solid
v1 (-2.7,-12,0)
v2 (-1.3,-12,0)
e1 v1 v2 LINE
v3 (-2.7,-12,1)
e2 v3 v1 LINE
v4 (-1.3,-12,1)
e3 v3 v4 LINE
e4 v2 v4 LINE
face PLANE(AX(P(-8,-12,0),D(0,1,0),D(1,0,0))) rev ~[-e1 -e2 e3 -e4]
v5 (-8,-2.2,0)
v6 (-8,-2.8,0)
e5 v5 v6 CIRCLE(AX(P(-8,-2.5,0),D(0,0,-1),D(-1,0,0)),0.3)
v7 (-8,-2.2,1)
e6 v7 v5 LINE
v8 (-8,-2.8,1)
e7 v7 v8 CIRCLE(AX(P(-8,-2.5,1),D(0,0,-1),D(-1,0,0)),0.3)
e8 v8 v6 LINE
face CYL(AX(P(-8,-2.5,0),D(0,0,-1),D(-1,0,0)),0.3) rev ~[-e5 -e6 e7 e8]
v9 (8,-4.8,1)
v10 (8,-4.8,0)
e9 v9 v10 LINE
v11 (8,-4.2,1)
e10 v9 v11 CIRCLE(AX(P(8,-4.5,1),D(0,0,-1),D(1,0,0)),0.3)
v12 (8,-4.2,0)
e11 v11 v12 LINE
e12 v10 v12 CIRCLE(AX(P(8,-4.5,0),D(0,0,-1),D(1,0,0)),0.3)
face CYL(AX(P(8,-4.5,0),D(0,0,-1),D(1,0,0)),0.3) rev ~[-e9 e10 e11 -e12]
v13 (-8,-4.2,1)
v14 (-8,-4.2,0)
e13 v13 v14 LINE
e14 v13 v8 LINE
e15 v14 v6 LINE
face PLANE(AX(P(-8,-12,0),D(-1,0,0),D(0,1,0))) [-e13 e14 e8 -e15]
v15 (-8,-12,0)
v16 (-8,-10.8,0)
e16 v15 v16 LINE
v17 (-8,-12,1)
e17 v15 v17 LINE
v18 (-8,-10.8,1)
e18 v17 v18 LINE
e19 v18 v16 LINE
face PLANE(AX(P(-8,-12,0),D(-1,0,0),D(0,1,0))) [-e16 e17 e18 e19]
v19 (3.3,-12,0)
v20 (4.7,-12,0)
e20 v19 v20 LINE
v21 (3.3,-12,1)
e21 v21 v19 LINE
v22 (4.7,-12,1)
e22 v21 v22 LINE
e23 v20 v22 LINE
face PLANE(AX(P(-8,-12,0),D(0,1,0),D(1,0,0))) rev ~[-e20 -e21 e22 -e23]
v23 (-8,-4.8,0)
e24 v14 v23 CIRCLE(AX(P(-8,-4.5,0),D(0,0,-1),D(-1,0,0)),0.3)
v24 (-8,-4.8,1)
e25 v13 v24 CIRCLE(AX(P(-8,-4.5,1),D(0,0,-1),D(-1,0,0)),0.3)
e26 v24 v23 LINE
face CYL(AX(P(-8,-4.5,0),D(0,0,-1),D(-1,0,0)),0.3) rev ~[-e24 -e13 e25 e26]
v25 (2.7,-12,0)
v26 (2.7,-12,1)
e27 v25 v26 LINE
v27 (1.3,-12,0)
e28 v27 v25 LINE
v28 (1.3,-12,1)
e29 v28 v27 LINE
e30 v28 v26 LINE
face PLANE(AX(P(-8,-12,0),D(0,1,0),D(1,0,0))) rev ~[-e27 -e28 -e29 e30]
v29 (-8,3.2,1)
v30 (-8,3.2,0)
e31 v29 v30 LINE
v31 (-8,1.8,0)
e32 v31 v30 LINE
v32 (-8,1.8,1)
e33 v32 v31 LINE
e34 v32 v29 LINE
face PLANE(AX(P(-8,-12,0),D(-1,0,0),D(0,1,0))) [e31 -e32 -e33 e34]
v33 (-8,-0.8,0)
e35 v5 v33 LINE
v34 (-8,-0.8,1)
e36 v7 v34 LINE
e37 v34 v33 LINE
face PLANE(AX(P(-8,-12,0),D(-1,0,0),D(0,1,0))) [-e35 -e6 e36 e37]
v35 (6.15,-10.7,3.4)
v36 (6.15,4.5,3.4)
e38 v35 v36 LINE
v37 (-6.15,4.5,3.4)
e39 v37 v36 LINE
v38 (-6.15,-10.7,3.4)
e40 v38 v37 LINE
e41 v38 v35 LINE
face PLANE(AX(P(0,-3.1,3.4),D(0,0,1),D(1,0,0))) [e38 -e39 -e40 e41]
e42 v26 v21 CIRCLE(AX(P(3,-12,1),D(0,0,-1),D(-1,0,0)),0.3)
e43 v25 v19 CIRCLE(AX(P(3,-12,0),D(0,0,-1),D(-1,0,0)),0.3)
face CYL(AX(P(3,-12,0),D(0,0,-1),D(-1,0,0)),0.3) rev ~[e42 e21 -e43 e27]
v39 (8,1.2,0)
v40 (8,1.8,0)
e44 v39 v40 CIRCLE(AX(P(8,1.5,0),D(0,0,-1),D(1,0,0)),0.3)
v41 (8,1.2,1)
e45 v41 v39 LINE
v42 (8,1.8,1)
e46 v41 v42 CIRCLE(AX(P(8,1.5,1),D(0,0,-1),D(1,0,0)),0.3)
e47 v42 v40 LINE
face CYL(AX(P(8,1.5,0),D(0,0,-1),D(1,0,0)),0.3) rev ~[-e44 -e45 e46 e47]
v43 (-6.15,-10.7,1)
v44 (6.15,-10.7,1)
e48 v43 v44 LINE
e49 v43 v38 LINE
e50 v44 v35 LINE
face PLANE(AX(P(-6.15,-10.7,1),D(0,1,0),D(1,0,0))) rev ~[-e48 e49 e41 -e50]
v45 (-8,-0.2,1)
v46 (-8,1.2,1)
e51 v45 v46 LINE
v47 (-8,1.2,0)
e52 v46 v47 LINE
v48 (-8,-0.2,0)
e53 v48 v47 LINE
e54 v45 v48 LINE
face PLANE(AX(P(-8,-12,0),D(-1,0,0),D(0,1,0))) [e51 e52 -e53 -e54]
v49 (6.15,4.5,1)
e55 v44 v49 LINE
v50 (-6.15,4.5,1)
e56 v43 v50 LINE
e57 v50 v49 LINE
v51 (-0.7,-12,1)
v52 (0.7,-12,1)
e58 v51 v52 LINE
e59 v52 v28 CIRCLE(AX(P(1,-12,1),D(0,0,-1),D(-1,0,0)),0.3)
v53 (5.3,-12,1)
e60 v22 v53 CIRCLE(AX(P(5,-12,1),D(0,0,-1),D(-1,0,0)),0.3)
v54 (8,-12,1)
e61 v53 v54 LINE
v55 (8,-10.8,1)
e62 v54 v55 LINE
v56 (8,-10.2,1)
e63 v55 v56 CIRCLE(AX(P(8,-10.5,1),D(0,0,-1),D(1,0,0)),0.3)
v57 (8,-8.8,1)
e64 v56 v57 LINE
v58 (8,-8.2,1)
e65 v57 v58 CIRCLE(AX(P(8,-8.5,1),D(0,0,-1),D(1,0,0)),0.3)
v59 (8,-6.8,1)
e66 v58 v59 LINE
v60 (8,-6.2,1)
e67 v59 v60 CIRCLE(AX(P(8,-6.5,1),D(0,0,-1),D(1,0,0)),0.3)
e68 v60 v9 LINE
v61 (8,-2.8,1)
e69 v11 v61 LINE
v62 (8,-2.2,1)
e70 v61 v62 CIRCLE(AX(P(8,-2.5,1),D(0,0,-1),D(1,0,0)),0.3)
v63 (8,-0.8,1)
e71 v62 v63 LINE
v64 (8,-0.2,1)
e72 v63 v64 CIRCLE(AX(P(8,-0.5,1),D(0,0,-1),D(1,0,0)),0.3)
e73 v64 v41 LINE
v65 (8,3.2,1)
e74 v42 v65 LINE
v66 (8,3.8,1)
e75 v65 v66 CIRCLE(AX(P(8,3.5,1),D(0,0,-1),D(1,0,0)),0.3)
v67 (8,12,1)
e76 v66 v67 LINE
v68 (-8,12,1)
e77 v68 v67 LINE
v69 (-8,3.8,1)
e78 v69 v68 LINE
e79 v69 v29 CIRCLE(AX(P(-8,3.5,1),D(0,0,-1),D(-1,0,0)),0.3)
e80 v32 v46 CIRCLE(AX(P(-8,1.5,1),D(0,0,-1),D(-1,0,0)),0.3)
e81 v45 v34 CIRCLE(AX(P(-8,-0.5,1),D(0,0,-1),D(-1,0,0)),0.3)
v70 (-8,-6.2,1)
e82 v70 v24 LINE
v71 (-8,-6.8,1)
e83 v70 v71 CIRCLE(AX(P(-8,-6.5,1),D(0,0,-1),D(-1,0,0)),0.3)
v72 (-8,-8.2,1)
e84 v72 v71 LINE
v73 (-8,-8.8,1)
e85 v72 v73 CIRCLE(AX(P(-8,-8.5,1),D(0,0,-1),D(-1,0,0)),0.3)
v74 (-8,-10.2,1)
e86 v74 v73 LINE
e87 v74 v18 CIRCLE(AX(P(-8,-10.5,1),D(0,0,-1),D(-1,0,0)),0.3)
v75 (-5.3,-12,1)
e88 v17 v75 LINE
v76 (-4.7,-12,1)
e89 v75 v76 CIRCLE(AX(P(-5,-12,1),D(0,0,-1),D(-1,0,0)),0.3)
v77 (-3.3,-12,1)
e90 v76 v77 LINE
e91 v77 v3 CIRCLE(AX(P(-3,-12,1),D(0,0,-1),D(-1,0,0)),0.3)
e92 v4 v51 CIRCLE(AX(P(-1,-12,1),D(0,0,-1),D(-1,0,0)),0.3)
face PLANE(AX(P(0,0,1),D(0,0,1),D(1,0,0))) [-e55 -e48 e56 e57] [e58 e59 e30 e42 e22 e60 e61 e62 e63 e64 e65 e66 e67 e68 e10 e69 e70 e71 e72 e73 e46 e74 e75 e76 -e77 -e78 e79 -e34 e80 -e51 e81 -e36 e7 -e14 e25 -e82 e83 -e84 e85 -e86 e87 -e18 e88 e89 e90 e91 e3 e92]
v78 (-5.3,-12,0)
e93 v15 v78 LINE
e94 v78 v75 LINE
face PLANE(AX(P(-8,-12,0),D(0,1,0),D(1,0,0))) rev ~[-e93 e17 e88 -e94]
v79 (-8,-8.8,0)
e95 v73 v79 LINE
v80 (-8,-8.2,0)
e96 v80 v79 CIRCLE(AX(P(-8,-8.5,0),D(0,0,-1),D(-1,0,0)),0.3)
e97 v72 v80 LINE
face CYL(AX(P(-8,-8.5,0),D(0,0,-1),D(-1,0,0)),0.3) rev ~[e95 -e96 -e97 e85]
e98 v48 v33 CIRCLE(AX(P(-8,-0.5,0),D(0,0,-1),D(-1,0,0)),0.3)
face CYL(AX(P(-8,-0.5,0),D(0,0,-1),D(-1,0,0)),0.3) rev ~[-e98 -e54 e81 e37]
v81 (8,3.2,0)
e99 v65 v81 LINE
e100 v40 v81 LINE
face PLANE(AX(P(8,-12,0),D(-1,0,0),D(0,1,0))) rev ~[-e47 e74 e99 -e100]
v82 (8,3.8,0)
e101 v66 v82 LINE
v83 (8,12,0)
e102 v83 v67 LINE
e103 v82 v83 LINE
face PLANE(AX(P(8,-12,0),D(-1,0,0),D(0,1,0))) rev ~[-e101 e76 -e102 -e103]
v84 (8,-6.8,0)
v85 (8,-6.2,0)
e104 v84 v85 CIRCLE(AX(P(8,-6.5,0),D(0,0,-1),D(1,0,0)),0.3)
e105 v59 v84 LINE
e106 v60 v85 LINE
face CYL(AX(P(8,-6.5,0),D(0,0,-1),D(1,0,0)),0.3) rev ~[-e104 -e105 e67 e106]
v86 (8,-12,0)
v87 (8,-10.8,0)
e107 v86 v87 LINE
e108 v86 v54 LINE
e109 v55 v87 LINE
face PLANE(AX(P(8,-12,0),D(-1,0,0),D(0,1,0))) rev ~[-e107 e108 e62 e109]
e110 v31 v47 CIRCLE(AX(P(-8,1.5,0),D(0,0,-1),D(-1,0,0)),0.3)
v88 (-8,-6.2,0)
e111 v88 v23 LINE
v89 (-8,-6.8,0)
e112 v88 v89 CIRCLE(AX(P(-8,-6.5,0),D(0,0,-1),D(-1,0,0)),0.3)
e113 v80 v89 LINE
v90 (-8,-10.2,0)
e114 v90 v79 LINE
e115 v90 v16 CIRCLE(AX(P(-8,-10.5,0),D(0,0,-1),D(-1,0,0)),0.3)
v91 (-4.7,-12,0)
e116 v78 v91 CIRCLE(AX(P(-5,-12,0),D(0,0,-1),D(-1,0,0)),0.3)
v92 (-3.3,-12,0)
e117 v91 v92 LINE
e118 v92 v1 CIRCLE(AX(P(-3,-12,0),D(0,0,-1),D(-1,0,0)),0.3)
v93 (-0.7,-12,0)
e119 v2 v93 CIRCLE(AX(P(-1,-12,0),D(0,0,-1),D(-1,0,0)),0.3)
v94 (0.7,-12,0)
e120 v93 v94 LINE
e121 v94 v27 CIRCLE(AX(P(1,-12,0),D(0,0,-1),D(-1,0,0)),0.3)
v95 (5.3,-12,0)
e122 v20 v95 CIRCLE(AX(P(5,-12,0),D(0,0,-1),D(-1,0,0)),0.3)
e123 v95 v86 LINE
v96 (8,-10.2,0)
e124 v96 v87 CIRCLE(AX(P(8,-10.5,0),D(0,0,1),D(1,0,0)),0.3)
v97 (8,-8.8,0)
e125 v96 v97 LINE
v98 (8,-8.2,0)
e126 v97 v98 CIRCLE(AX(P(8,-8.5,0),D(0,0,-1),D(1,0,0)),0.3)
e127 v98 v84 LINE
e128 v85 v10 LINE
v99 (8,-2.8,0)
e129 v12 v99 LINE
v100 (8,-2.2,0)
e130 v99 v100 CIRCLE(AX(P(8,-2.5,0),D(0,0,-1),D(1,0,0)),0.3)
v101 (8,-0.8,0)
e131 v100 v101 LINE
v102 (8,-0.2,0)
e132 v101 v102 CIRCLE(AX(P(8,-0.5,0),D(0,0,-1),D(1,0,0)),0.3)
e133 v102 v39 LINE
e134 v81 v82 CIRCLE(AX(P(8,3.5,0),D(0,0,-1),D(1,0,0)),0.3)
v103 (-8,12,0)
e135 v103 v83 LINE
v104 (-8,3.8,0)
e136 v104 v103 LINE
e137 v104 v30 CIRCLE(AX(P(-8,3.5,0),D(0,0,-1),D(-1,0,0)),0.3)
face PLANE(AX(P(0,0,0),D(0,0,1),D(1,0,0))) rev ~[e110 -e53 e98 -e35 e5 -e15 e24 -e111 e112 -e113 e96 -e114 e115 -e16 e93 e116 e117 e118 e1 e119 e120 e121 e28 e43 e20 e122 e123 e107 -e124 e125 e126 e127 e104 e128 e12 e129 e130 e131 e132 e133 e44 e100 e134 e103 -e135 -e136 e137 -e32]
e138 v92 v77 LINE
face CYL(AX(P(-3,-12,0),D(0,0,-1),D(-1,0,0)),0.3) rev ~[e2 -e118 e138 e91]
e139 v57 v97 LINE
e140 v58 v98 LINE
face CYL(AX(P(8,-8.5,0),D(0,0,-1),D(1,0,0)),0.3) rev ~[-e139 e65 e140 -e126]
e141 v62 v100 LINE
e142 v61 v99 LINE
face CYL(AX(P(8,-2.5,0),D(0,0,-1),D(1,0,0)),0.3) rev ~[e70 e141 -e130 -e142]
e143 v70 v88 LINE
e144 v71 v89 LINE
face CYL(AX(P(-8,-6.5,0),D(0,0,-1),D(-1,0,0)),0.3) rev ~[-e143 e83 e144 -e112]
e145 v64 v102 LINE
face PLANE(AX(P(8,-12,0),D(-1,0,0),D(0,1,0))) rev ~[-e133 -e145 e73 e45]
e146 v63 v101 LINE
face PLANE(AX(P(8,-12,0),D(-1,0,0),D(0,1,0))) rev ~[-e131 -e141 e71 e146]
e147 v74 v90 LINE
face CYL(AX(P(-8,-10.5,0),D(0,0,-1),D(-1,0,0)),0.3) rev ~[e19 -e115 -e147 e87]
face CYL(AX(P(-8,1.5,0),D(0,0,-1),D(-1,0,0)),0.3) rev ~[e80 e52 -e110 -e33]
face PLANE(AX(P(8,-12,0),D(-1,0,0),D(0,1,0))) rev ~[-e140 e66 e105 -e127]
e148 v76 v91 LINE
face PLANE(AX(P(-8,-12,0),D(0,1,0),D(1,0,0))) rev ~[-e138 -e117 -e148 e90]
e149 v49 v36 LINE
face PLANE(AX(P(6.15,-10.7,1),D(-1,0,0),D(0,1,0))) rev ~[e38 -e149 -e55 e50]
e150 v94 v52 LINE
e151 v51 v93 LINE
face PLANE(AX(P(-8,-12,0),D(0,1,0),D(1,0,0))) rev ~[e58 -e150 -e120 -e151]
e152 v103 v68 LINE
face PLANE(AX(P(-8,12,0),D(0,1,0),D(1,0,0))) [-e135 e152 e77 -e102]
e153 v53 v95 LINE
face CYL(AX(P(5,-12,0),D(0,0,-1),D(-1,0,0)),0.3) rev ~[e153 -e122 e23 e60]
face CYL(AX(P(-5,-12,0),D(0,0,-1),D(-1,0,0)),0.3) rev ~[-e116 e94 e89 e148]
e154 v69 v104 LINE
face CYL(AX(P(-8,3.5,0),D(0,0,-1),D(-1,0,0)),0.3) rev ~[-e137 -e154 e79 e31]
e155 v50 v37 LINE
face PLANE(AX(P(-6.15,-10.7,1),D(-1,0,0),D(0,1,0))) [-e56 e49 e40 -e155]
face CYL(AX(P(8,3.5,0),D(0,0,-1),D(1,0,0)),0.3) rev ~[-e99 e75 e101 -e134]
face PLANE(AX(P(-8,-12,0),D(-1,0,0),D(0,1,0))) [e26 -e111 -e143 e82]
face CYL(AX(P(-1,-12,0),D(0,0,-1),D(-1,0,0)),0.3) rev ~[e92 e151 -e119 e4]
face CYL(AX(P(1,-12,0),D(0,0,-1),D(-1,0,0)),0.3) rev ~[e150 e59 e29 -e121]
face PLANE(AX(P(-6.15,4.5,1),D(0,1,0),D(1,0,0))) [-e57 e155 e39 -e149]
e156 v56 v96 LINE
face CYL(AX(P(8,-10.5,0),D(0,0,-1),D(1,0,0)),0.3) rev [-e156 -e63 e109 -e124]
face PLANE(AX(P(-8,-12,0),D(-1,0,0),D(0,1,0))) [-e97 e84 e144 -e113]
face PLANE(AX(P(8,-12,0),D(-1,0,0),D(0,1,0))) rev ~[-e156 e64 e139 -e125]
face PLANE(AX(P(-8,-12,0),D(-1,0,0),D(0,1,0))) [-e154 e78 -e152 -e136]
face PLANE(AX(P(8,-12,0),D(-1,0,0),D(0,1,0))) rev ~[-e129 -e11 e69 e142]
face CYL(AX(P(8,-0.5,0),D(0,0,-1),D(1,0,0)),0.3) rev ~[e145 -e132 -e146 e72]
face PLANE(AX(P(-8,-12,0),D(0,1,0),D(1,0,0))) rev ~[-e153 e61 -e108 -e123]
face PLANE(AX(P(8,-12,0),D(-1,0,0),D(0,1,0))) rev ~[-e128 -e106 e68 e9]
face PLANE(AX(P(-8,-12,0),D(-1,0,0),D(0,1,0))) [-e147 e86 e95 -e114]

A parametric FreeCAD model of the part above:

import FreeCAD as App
import Part
import Sketcher
from FreeCAD import Vector

doc = App.newDocument("Part")
body = doc.addObject("PartDesign::Body", "Body")

# Sketch on XY plane
sketch1 = body.newObject("Sketcher::SketchObject", "Sketch")
sketch1.AttachmentSupport = (doc.getObject("XY_Plane"), [""])
sketch1.MapMode = "FlatFace"
sketch1.addGeometry(Part.LineSegment(Vector(-8, 12, 0), Vector(-8, -12, 0)), False)
sketch1.addGeometry(Part.LineSegment(Vector(-8, -12, 0), Vector(8, -12, 0)), False)
sketch1.addGeometry(Part.LineSegment(Vector(8, -12, 0), Vector(8, 12, 0)), False)
sketch1.addGeometry(Part.LineSegment(Vector(8, 12, 0), Vector(-8, 12, 0)), False)
sketch1.addConstraint(Sketcher.Constraint("Coincident", 0, 2, 1, 1))
sketch1.addConstraint(Sketcher.Constraint("Coincident", 1, 2, 2, 1))
sketch1.addConstraint(Sketcher.Constraint("Coincident", 2, 2, 3, 1))
sketch1.addConstraint(Sketcher.Constraint("Coincident", 3, 2, 0, 1))
sketch1.addConstraint(Sketcher.Constraint("Vertical", 0))
sketch1.addConstraint(Sketcher.Constraint("Horizontal", 1))
sketch1.addConstraint(Sketcher.Constraint("Vertical", 2))
sketch1.addConstraint(Sketcher.Constraint("Horizontal", 3))
sketch1.addConstraint(Sketcher.Constraint("Symmetric", 0, 2, 2, 2, -1, 1))
sketch1.addConstraint(Sketcher.Constraint("DistanceX", 1, 1, 1, 2, 16.0))
sketch1.addConstraint(Sketcher.Constraint("DistanceY", 0, 2, 0, 1, 24.0))
pad1 = body.newObject("PartDesign::Pad", "Pad")
pad1.Profile = sketch1
pad1.Length = 1

# Sketch on XY plane
sketch2 = body.newObject("Sketcher::SketchObject", "Sketch001")
sketch2.AttachmentSupport = (doc.getObject("XY_Plane"), [""])
sketch2.MapMode = "FlatFace"
sketch2.AttachmentOffset = App.Placement(Vector(0, 0, 1), App.Rotation())
sketch2.addGeometry(Part.LineSegment(Vector(-6, 4, 0), Vector(-6, -11, 0)), False)
sketch2.addGeometry(Part.LineSegment(Vector(-6, -11, 0), Vector(6, -11, 0)), False)
sketch2.addGeometry(Part.LineSegment(Vector(6, -11, 0), Vector(6, 4, 0)), False)
sketch2.addGeometry(Part.LineSegment(Vector(6, 4, 0), Vector(-6, 4, 0)), False)
sketch2.addConstraint(Sketcher.Constraint("Coincident", 0, 2, 1, 1))
sketch2.addConstraint(Sketcher.Constraint("Coincident", 1, 2, 2, 1))
sketch2.addConstraint(Sketcher.Constraint("Coincident", 2, 2, 3, 1))
sketch2.addConstraint(Sketcher.Constraint("Coincident", 3, 2, 0, 1))
sketch2.addConstraint(Sketcher.Constraint("Vertical", 0))
sketch2.addConstraint(Sketcher.Constraint("Horizontal", 1))
sketch2.addConstraint(Sketcher.Constraint("Vertical", 2))
sketch2.addConstraint(Sketcher.Constraint("Horizontal", 3))
sketch2.addConstraint(Sketcher.Constraint("DistanceX", 1, 1, 1, 2, 12.3))
sketch2.addConstraint(Sketcher.Constraint("DistanceY", 0, 2, 0, 1, 15.2))
sketch2.addConstraint(Sketcher.Constraint("DistanceY", 0, 2, -1, 1, 10.7))
sketch2.addConstraint(Sketcher.Constraint("DistanceX", 0, 2, -1, 1, 6.15))
pad2 = body.newObject("PartDesign::Pad", "Pad001")
pad2.Profile = sketch2
pad2.Length = 2.4

# Sketch on XY plane
sketch3 = body.newObject("Sketcher::SketchObject", "Sketch002")
sketch3.AttachmentSupport = (doc.getObject("XY_Plane"), [""])
sketch3.MapMode = "FlatFace"
sketch3.addGeometry(Part.Circle(Vector(-8, -10.5, 0), Vector(0, 0, 1), 0.3), False)
sketch3.addConstraint(Sketcher.Constraint("Diameter", 0, 0.6))
sketch3.addConstraint(Sketcher.Constraint("DistanceX", 0, 3, -1, 1, 8.0))
sketch3.addConstraint(Sketcher.Constraint("DistanceY", 0, 3, -1, 1, 10.5))
pocket1 = body.newObject("PartDesign::Pocket", "Pocket")
pocket1.Profile = sketch3
pocket1.Type = "ThroughAll"
pocket1.Reversed = True
doc.recompute()

linearpattern = body.newObject("PartDesign::LinearPattern", "LinearPattern")
linearpattern.Originals = [pocket1]
linearpattern.Direction = (doc.getObject("Y_Axis"), [""])
linearpattern.Mode = "offset"
linearpattern.Offset = 2
linearpattern.Occurrences = 8
body.Tip = linearpattern
doc.recompute()

mirrored = body.newObject("PartDesign::Mirrored", "Mirrored")
mirrored.Originals = [pocket1]
mirrored.MirrorPlane = (doc.getObject("YZ_Plane"), [""])
body.Tip = mirrored

# Sketch on XY plane
sketch4 = body.newObject("Sketcher::SketchObject", "Sketch003")
sketch4.AttachmentSupport = (doc.getObject("XY_Plane"), [""])
sketch4.MapMode = "FlatFace"
sketch4.addGeometry(Part.Circle(Vector(8, -8.5, 0), Vector(0, 0, 1), 0.3), False)
sketch4.addConstraint(Sketcher.Constraint("Diameter", 0, 0.6))
sketch4.addConstraint(Sketcher.Constraint("DistanceX", -1, 1, 0, 3, 8.0))
sketch4.addConstraint(Sketcher.Constraint("DistanceY", 0, 3, -1, 1, 8.5))
pocket2 = body.newObject("PartDesign::Pocket", "Pocket001")
pocket2.Profile = sketch4
pocket2.Type = "ThroughAll"
pocket2.Reversed = True

# Sketch on XY plane
sketch5 = body.newObject("Sketcher::SketchObject", "Sketch004")
sketch5.AttachmentSupport = (doc.getObject("XY_Plane"), [""])
sketch5.MapMode = "FlatFace"
sketch5.addGeometry(Part.Circle(Vector(8, -6.5, 0), Vector(0, 0, 1), 0.3), False)
sketch5.addConstraint(Sketcher.Constraint("Diameter", 0, 0.6))
sketch5.addConstraint(Sketcher.Constraint("DistanceX", -1, 1, 0, 3, 8.0))
sketch5.addConstraint(Sketcher.Constraint("DistanceY", 0, 3, -1, 1, 6.5))
pocket3 = body.newObject("PartDesign::Pocket", "Pocket002")
pocket3.Profile = sketch5
pocket3.Type = "ThroughAll"
pocket3.Reversed = True

# Sketch on XY plane
sketch6 = body.newObject("Sketcher::SketchObject", "Sketch005")
sketch6.AttachmentSupport = (doc.getObject("XY_Plane"), [""])
sketch6.MapMode = "FlatFace"
sketch6.addGeometry(Part.Circle(Vector(8, -4.5, 0), Vector(0, 0, 1), 0.3), False)
sketch6.addConstraint(Sketcher.Constraint("Diameter", 0, 0.6))
sketch6.addConstraint(Sketcher.Constraint("DistanceX", -1, 1, 0, 3, 8.0))
sketch6.addConstraint(Sketcher.Constraint("DistanceY", 0, 3, -1, 1, 4.5))
pocket4 = body.newObject("PartDesign::Pocket", "Pocket003")
pocket4.Profile = sketch6
pocket4.Type = "ThroughAll"
pocket4.Reversed = True

# Sketch on XY plane
sketch7 = body.newObject("Sketcher::SketchObject", "Sketch006")
sketch7.AttachmentSupport = (doc.getObject("XY_Plane"), [""])
sketch7.MapMode = "FlatFace"
sketch7.addGeometry(Part.Circle(Vector(8, -2.5, 0), Vector(0, 0, 1), 0.3), False)
sketch7.addConstraint(Sketcher.Constraint("Diameter", 0, 0.6))
sketch7.addConstraint(Sketcher.Constraint("DistanceX", -1, 1, 0, 3, 8.0))
sketch7.addConstraint(Sketcher.Constraint("DistanceY", 0, 3, -1, 1, 2.5))
pocket5 = body.newObject("PartDesign::Pocket", "Pocket004")
pocket5.Profile = sketch7
pocket5.Type = "ThroughAll"
pocket5.Reversed = True

# Sketch on XY plane
sketch8 = body.newObject("Sketcher::SketchObject", "Sketch007")
sketch8.AttachmentSupport = (doc.getObject("XY_Plane"), [""])
sketch8.MapMode = "FlatFace"
sketch8.addGeometry(Part.Circle(Vector(8, -0.5, 0), Vector(0, 0, 1), 0.3), False)
sketch8.addConstraint(Sketcher.Constraint("Diameter", 0, 0.6))
sketch8.addConstraint(Sketcher.Constraint("DistanceX", -1, 1, 0, 3, 8.0))
sketch8.addConstraint(Sketcher.Constraint("DistanceY", 0, 3, -1, 1, 0.5))
pocket6 = body.newObject("PartDesign::Pocket", "Pocket005")
pocket6.Profile = sketch8
pocket6.Type = "ThroughAll"
pocket6.Reversed = True

# Sketch on XY plane
sketch9 = body.newObject("Sketcher::SketchObject", "Sketch008")
sketch9.AttachmentSupport = (doc.getObject("XY_Plane"), [""])
sketch9.MapMode = "FlatFace"
sketch9.addGeometry(Part.Circle(Vector(8, 1.5, 0), Vector(0, 0, 1), 0.3), False)
sketch9.addConstraint(Sketcher.Constraint("Diameter", 0, 0.6))
sketch9.addConstraint(Sketcher.Constraint("DistanceX", -1, 1, 0, 3, 8.0))
sketch9.addConstraint(Sketcher.Constraint("DistanceY", -1, 1, 0, 3, 1.5))
pocket7 = body.newObject("PartDesign::Pocket", "Pocket006")
pocket7.Profile = sketch9
pocket7.Type = "ThroughAll"
pocket7.Reversed = True

# Sketch on XY plane
sketch10 = body.newObject("Sketcher::SketchObject", "Sketch009")
sketch10.AttachmentSupport = (doc.getObject("XY_Plane"), [""])
sketch10.MapMode = "FlatFace"
sketch10.addGeometry(Part.Circle(Vector(8, 3.5, 0), Vector(0, 0, 1), 0.3), False)
sketch10.addConstraint(Sketcher.Constraint("Diameter", 0, 0.6))
sketch10.addConstraint(Sketcher.Constraint("DistanceX", -1, 1, 0, 3, 8.0))
sketch10.addConstraint(Sketcher.Constraint("DistanceY", -1, 1, 0, 3, 3.5))
pocket8 = body.newObject("PartDesign::Pocket", "Pocket007")
pocket8.Profile = sketch10
pocket8.Type = "ThroughAll"
pocket8.Reversed = True

# Sketch on XY plane
sketch11 = body.newObject("Sketcher::SketchObject", "Sketch010")
sketch11.AttachmentSupport = (doc.getObject("XY_Plane"), [""])
sketch11.MapMode = "FlatFace"
sketch11.addGeometry(Part.Circle(Vector(-5, -12, 0), Vector(0, 0, 1), 0.3), False)
sketch11.addConstraint(Sketcher.Constraint("Diameter", 0, 0.6))
sketch11.addConstraint(Sketcher.Constraint("DistanceX", 0, 3, -1, 1, 5.0))
sketch11.addConstraint(Sketcher.Constraint("DistanceY", 0, 3, -1, 1, 12.0))
pocket9 = body.newObject("PartDesign::Pocket", "Pocket008")
pocket9.Profile = sketch11
pocket9.Type = "ThroughAll"
pocket9.Reversed = True
doc.recompute()

linearpattern2 = body.newObject("PartDesign::LinearPattern", "LinearPattern001")
linearpattern2.Originals = [pocket9]
linearpattern2.Direction = (doc.getObject("X_Axis"), [""])
linearpattern2.Mode = "offset"
linearpattern2.Offset = 2
linearpattern2.Occurrences = 6
body.Tip = linearpattern2

doc.recompute()
